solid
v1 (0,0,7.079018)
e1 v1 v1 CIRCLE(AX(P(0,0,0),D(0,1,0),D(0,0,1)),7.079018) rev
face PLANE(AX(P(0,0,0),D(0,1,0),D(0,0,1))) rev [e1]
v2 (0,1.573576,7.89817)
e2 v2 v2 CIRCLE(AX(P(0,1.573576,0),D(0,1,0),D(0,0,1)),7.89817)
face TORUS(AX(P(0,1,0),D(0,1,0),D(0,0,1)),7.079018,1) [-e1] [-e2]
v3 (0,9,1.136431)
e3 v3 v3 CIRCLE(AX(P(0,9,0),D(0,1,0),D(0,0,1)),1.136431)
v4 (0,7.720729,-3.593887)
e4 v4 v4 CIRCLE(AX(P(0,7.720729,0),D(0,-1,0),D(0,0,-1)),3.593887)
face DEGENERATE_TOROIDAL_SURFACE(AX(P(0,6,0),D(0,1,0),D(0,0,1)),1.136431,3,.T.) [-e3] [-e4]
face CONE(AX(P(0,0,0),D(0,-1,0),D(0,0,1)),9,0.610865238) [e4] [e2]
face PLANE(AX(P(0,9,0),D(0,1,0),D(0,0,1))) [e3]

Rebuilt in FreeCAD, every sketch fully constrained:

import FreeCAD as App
import Part
import Sketcher
from FreeCAD import Vector


def edges_at(feature, points):
    """Names of the edges that pass closest to the given points."""
    edges = feature.Shape.Edges
    near = lambda p: min(range(len(edges)), key=lambda i: edges[i].distToShape(Part.Vertex(*p))[0])
    return sorted({f"Edge{near(p) + 1}" for p in points})

doc = App.newDocument("Part")
params = doc.addObject("Spreadsheet::Sheet", "Params")
for row, (alias, value) in enumerate([
    ("sketch1_diameter", "18 mm"),
    ("pad1_length", "9 mm"),
    ("pad1_taper", "-35 deg"),
    ("fillet_radius", "3 mm"),
    ("fillet2_radius", "1 mm"),
], start=1):
    params.set(f"A{row}", alias)
    params.set(f"B{row}", "=" + value)
    params.setAlias(f"B{row}", alias)

body = doc.addObject("PartDesign::Body", "Body")

sketch1 = doc.addObject("Sketcher::SketchObject", "Sketch")
body.addObject(sketch1)
sketch1.AttachmentSupport = (doc.XZ_Plane, [""])
sketch1.MapMode = "FlatFace"
sketch1.addGeometry(Part.Circle(Vector(0, 0, 0), Vector(0, 0, 1), 9), False)
sketch1.addConstraint([
    Sketcher.Constraint("Coincident", 0, 3, -1, 1),
    Sketcher.Constraint("Diameter", 0, 18.0),
])
sketch1.setExpression("Constraints[1]", "Params.sketch1_diameter")
pad1 = doc.addObject("PartDesign::Pad", "Pad")
body.addObject(pad1)
pad1.Profile = sketch1
pad1.setExpression("Length", "Params.pad1_length")
pad1.Reversed = True
pad1.setExpression("TaperAngle", "Params.pad1_taper")
doc.recompute()

fillet = doc.addObject("PartDesign::Fillet", "Fillet")
body.addObject(fillet)
fillet.Base = (pad1, edges_at(pad1, [(-2.698, 9, 0)]))
fillet.setExpression("Radius", "Params.fillet_radius")
doc.recompute()

fillet2 = doc.addObject("PartDesign::Fillet", "Fillet001")
body.addObject(fillet2)
fillet2.Base = (fillet, edges_at(fillet, [(-9, 0, 0)]))
fillet2.setExpression("Radius", "Params.fillet2_radius")

doc.recompute()
